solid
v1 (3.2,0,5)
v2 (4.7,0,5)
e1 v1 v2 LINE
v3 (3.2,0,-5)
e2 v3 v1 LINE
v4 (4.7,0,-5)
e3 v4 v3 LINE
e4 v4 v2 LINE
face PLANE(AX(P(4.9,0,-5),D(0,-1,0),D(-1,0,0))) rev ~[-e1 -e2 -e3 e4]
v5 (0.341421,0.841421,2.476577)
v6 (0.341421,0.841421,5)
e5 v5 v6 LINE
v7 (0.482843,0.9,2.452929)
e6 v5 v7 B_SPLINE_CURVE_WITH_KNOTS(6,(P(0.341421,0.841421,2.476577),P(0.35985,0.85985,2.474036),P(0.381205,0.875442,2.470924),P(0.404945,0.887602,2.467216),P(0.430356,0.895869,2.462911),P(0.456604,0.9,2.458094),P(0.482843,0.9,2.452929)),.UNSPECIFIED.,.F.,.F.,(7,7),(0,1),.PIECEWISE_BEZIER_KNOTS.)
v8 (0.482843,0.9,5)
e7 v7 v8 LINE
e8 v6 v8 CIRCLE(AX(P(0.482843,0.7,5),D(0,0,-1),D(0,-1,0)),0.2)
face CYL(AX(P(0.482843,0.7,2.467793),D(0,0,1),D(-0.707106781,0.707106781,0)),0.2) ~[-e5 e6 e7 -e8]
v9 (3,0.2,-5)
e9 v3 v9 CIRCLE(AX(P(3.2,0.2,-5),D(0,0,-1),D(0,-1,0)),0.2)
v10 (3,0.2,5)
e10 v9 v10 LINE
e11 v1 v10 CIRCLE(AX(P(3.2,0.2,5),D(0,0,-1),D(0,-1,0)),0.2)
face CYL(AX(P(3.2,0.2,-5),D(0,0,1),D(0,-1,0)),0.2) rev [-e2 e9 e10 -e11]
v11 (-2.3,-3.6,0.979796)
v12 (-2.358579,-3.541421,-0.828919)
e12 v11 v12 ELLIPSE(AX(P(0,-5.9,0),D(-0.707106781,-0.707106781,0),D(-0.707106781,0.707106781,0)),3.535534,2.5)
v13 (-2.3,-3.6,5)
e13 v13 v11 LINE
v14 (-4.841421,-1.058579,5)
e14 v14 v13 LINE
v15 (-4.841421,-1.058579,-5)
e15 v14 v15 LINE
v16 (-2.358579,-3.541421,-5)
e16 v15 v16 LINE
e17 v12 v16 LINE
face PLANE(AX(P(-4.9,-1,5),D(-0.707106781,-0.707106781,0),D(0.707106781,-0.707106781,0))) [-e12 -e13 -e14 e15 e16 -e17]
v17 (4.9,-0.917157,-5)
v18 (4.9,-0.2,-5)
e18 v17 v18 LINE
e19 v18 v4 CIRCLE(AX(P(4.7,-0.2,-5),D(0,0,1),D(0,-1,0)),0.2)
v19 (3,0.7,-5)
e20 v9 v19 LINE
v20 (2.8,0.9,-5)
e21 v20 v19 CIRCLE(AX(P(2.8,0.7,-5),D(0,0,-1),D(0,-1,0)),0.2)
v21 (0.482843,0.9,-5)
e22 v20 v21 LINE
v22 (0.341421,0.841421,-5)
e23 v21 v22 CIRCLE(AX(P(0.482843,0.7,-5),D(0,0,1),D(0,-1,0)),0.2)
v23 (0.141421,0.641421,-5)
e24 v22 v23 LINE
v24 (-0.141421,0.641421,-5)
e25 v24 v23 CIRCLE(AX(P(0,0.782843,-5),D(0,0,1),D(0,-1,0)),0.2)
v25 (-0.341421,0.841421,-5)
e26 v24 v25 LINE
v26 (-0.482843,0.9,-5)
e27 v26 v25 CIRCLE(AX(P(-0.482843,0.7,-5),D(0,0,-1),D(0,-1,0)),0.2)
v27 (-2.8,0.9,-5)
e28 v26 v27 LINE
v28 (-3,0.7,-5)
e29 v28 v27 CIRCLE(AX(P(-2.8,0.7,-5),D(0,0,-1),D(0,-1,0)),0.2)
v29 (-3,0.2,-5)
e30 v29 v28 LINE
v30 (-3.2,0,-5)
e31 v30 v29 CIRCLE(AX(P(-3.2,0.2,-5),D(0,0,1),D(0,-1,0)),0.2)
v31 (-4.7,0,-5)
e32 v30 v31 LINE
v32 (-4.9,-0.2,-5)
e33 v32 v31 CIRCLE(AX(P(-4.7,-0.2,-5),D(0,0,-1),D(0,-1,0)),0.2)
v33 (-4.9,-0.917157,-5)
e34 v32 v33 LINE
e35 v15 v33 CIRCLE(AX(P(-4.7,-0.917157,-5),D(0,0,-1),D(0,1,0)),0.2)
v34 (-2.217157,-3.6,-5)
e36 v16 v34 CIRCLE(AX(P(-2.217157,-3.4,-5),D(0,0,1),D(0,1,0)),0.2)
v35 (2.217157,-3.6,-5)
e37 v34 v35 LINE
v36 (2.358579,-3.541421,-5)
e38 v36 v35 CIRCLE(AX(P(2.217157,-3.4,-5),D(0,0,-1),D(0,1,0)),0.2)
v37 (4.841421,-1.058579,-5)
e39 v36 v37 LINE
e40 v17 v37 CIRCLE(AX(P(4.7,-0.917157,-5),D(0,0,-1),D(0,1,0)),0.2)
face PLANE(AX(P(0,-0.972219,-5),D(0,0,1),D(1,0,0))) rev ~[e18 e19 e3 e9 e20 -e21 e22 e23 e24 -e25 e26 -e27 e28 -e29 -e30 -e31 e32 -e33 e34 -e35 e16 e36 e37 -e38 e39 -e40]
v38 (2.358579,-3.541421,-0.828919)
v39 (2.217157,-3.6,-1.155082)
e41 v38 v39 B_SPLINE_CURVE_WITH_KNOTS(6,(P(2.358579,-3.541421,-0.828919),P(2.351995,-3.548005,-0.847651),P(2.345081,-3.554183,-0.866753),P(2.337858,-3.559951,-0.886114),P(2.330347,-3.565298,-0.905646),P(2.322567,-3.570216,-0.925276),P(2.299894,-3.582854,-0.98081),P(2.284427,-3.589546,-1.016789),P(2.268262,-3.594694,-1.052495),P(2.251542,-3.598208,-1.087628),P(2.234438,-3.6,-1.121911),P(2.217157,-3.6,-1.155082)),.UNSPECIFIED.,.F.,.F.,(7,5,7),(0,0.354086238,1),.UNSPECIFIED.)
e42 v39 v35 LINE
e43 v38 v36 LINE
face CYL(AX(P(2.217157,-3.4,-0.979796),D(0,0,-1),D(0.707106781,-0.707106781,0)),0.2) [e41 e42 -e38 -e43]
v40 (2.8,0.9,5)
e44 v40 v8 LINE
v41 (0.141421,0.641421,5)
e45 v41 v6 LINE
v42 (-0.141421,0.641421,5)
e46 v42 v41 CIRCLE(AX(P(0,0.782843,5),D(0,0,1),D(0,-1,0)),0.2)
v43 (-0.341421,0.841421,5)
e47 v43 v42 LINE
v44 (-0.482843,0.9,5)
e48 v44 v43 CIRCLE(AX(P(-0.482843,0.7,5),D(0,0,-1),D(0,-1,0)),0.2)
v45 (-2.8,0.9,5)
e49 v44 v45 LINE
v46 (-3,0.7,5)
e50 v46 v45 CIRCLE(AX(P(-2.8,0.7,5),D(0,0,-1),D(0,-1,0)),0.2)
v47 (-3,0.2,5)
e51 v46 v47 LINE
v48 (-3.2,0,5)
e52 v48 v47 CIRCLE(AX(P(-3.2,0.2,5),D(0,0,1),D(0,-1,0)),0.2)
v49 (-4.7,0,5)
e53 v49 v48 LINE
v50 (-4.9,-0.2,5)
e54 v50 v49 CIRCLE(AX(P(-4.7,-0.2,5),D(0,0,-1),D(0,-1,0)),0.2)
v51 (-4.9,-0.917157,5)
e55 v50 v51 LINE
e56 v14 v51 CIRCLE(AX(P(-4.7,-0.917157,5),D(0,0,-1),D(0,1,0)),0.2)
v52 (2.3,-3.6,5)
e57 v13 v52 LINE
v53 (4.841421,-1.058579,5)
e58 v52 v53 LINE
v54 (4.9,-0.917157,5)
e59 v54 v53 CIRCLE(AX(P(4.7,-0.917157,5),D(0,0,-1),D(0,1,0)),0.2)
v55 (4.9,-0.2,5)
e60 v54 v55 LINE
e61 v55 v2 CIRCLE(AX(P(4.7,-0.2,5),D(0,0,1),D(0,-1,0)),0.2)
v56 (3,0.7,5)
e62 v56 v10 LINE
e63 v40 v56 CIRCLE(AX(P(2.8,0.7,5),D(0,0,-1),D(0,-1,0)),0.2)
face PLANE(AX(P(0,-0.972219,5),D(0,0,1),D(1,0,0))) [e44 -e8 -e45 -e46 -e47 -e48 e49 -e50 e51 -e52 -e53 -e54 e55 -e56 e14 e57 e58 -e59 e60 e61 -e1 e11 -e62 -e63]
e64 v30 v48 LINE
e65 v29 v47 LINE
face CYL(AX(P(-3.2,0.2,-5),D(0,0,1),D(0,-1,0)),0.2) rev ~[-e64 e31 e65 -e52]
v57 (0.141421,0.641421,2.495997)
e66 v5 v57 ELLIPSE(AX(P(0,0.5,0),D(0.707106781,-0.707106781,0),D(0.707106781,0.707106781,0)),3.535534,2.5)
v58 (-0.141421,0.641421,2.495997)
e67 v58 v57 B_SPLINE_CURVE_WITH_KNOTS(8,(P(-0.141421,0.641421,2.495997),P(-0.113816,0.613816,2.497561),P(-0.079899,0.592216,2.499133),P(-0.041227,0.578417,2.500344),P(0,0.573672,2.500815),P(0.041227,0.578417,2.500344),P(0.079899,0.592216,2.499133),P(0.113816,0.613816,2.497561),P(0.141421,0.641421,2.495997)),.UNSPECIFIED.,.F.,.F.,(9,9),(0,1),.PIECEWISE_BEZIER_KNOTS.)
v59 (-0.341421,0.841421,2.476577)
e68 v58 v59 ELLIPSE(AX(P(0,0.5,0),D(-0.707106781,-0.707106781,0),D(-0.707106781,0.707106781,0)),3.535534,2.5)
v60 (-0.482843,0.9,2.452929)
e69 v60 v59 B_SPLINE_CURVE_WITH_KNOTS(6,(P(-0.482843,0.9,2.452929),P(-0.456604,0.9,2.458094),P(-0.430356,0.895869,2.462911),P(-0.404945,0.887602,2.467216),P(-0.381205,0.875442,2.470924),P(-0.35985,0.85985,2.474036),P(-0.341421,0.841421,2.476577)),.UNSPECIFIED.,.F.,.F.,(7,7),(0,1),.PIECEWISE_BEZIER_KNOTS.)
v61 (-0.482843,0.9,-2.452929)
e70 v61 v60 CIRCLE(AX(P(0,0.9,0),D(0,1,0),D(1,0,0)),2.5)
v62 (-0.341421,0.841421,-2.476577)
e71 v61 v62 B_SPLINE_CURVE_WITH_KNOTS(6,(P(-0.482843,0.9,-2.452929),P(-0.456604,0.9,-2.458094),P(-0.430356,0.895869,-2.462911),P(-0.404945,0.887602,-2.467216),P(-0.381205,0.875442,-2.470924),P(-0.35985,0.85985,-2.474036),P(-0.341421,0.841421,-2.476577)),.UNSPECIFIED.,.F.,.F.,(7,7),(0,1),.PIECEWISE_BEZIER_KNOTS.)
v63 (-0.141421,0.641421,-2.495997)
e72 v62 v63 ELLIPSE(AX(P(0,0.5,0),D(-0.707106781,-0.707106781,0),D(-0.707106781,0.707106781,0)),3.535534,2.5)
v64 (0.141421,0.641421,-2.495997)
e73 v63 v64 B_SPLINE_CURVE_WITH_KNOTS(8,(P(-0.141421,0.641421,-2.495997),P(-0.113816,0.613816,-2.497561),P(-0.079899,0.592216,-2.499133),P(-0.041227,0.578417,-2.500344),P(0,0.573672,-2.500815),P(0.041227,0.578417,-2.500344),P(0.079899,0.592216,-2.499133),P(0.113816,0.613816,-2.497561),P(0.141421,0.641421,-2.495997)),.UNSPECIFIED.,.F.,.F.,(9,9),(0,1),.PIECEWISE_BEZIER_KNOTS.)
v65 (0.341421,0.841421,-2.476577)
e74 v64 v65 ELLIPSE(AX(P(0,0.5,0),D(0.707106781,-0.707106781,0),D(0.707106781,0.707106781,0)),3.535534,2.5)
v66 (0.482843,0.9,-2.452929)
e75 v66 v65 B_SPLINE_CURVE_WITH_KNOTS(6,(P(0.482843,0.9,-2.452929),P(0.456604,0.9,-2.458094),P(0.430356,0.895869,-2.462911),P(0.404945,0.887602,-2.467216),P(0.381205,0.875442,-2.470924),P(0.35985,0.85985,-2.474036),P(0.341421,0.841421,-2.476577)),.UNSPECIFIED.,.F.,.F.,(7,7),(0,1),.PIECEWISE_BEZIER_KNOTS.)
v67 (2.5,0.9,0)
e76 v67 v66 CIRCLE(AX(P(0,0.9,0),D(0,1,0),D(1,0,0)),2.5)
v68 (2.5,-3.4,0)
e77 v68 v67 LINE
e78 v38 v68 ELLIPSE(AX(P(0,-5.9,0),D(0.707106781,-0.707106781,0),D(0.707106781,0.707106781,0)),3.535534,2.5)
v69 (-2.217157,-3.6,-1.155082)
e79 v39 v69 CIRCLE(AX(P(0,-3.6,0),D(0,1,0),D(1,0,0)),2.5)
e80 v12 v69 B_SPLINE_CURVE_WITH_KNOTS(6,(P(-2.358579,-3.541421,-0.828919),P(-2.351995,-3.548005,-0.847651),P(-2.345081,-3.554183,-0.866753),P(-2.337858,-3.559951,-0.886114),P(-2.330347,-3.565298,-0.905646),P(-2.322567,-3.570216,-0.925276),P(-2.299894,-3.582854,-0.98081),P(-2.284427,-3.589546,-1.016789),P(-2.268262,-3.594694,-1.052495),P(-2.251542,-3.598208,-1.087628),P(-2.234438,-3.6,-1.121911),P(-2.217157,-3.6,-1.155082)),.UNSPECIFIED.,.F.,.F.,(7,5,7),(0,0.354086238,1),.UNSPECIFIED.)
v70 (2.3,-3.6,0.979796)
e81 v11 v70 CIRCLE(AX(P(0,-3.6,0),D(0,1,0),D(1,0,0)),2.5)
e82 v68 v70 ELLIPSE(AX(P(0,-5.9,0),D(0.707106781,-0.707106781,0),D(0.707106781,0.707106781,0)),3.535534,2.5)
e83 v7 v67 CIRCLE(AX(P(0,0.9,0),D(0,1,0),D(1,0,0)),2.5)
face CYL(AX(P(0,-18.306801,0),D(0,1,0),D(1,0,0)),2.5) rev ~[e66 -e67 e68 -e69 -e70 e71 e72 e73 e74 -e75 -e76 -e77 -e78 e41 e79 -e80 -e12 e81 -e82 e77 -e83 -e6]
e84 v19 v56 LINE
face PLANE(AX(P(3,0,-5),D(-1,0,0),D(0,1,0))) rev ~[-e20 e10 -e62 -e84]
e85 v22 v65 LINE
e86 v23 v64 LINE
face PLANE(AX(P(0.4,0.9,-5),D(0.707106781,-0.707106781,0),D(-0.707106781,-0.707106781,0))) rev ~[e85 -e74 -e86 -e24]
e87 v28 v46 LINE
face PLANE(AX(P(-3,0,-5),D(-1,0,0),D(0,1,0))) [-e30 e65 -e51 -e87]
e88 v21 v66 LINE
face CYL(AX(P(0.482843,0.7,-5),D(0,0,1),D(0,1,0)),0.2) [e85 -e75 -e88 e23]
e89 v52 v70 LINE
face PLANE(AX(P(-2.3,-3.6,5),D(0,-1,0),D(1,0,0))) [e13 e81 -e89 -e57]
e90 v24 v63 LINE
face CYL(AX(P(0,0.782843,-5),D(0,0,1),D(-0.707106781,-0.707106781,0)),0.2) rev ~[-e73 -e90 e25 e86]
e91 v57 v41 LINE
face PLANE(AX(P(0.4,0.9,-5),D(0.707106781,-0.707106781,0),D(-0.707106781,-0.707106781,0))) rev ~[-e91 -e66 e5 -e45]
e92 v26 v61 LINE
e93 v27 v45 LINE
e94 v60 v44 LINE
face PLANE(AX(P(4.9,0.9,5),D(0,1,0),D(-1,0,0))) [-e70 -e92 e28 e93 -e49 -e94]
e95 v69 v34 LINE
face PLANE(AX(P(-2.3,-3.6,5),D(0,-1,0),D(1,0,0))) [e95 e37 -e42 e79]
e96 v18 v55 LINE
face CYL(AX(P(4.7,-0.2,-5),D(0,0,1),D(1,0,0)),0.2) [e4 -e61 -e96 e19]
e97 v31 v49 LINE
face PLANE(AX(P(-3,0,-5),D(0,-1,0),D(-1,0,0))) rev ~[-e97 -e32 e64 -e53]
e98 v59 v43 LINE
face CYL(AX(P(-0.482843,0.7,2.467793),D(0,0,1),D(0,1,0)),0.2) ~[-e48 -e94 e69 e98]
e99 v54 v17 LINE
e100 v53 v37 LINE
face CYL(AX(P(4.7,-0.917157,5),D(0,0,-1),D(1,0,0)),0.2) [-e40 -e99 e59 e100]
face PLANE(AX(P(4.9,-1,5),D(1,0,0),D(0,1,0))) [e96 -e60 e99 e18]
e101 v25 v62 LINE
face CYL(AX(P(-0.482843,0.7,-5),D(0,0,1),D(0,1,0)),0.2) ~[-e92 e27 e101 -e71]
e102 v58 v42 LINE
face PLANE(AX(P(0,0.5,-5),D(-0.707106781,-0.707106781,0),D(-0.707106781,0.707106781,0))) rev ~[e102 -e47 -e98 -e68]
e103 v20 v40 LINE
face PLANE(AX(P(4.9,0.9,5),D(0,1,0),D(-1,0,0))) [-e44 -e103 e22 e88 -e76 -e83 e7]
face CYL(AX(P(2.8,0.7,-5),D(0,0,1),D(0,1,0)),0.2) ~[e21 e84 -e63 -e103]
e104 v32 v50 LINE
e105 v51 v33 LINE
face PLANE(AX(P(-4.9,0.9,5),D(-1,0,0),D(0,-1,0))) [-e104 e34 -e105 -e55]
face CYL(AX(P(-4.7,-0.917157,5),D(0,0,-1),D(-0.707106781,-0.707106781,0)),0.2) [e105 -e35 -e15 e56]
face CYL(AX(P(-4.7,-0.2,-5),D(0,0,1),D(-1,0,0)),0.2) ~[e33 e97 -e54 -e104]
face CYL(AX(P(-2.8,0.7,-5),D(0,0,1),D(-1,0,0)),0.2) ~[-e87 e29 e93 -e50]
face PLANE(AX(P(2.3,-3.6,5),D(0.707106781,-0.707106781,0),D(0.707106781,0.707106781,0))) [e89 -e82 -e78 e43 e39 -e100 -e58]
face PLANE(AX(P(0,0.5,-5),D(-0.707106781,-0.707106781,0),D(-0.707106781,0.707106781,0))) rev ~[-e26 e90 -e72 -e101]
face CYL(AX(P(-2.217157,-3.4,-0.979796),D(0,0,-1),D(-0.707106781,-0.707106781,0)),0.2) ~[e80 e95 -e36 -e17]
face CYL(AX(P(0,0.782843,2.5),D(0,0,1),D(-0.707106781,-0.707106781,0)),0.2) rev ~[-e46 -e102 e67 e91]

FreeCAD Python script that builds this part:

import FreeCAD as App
import Part
import Sketcher

V = App.Vector
Q = App.Units.Quantity


def edges_at(feature, points):
    """Names of the edges that pass closest to the given points."""
    edges = feature.Shape.Edges
    near = lambda p: min(range(len(edges)), key=lambda i: edges[i].distToShape(Part.Vertex(*p))[0])
    return sorted({f"Edge{near(p) + 1}" for p in points})

doc = App.newDocument("Part")
body = doc.addObject("PartDesign::Body", "Body")

# Sketch on XY plane
sketch1 = body.newObject("Sketcher::SketchObject", "Sketch")
sketch1.AttachmentSupport = (doc.getObject("XY_Plane"), [""])
sketch1.MapMode = "FlatFace"
sketch1.AttachmentOffset = App.Placement(V(0, 0, 5), App.Rotation())
sketch1.addGeometry([
    Part.LineSegment(V(4.9, -1, 0), V(4.9, 0.9, 0)),  # 0
    Part.LineSegment(V(4.9, 0.9, 0), V(-4.9, 0.9, 0)),  # 1
    Part.LineSegment(V(-4.9, 0.9, 0), V(-4.9, -1, 0)),  # 2
    Part.LineSegment(V(-4.9, -1, 0), V(-2.3, -3.6, 0)),  # 3
    Part.LineSegment(V(-2.3, -3.6, 0), V(2.3, -3.6, 0)),  # 4
    Part.LineSegment(V(2.3, -3.6, 0), V(4.9, -1, 0)),  # 5
], False)
sketch1.addConstraint([
    Sketcher.Constraint("Coincident", 0, 2, 1, 1),
    Sketcher.Constraint("Coincident", 1, 2, 2, 1),
    Sketcher.Constraint("Coincident", 2, 2, 3, 1),
    Sketcher.Constraint("Coincident", 3, 2, 4, 1),
    Sketcher.Constraint("Coincident", 4, 2, 5, 1),
    Sketcher.Constraint("Coincident", 5, 2, 0, 1),
    Sketcher.Constraint("Vertical", 0),
    Sketcher.Constraint("Horizontal", 1),
    Sketcher.Constraint("Vertical", 2),
    Sketcher.Constraint("Horizontal", 4),
    Sketcher.Constraint("Symmetric", 2, 2, 5, 2, -2),
    Sketcher.Constraint("Perpendicular", 3, 5),
    Sketcher.Constraint("Equal", 3, 5),
    Sketcher.Constraint("DistanceX", 1, 2, 1, 1, Q("9.8 mm")),
    Sketcher.Constraint("DistanceX", 4, 1, 4, 2, Q("4.6 mm")),
    Sketcher.Constraint("DistanceY", 0, 1, 0, 2, Q("1.9 mm")),
    Sketcher.Constraint("DistanceY", 2, 2, -1, 1, Q("1 mm")),
])
pad1 = body.newObject("PartDesign::Pad", "Pad")
pad1.Profile = sketch1
pad1.Length = 10
pad1.Reversed = True

# Sketch on XY plane
sketch2 = body.newObject("Sketcher::SketchObject", "Sketch001")
sketch2.AttachmentSupport = (doc.getObject("XY_Plane"), [""])
sketch2.MapMode = "FlatFace"
sketch2.AttachmentOffset = App.Placement(V(0, 0, -5), App.Rotation())
sketch2.addGeometry([
    Part.LineSegment(V(-3, 0.9, 0), V(-3, 0, 0)),
    Part.LineSegment(V(-3, 0, 0), V(-4.9, 0, 0)),
    Part.LineSegment(V(-4.9, 0, 0), V(-4.9, 0.9, 0)),
    Part.LineSegment(V(-4.9, 0.9, 0), V(-3, 0.9, 0)),
], False)
sketch2.addConstraint([
    Sketcher.Constraint("Coincident", 0, 2, 1, 1),
    Sketcher.Constraint("Coincident", 1, 2, 2, 1),
    Sketcher.Constraint("Coincident", 2, 2, 3, 1),
    Sketcher.Constraint("Coincident", 3, 2, 0, 1),
    Sketcher.Constraint("Vertical", 0),
    Sketcher.Constraint("Horizontal", 1),
    Sketcher.Constraint("Vertical", 2),
    Sketcher.Constraint("Horizontal", 3),
    Sketcher.Constraint("PointOnObject", 0, 2, -1),
    Sketcher.Constraint("DistanceX", 1, 2, 1, 1, Q("1.9 mm")),
    Sketcher.Constraint("DistanceY", 0, 2, 0, 1, Q("0.9 mm")),
    Sketcher.Constraint("DistanceX", 0, 2, -1, 1, Q("3 mm")),
])
pocket1 = body.newObject("PartDesign::Pocket", "Pocket")
pocket1.Profile = sketch2
pocket1.Type = "ThroughAll"
pocket1.Reversed = True

# Sketch on XY plane
sketch3 = body.newObject("Sketcher::SketchObject", "Sketch002")
sketch3.AttachmentSupport = (doc.getObject("XY_Plane"), [""])
sketch3.MapMode = "FlatFace"
sketch3.AttachmentOffset = App.Placement(V(0, 0, -5), App.Rotation())
sketch3.addGeometry([
    Part.LineSegment(V(4.9, 0.9, 0), V(4.9, 0, 0)),
    Part.LineSegment(V(4.9, 0, 0), V(3, 0, 0)),
    Part.LineSegment(V(3, 0, 0), V(3, 0.9, 0)),
    Part.LineSegment(V(3, 0.9, 0), V(4.9, 0.9, 0)),
], False)
sketch3.addConstraint([
    Sketcher.Constraint("Coincident", 0, 2, 1, 1),
    Sketcher.Constraint("Coincident", 1, 2, 2, 1),
    Sketcher.Constraint("Coincident", 2, 2, 3, 1),
    Sketcher.Constraint("Coincident", 3, 2, 0, 1),
    Sketcher.Constraint("Vertical", 0),
    Sketcher.Constraint("Horizontal", 1),
    Sketcher.Constraint("Vertical", 2),
    Sketcher.Constraint("Horizontal", 3),
    Sketcher.Constraint("PointOnObject", 0, 2, -1),
    Sketcher.Constraint("DistanceX", 1, 2, 1, 1, Q("1.9 mm")),
    Sketcher.Constraint("DistanceY", 0, 2, 0, 1, Q("0.9 mm")),
    Sketcher.Constraint("DistanceX", -1, 1, 1, 2, Q("3 mm")),
])
pocket2 = body.newObject("PartDesign::Pocket", "Pocket001")
pocket2.Profile = sketch3
pocket2.Type = "ThroughAll"
pocket2.Reversed = True

# Sketch on XY plane
sketch4 = body.newObject("Sketcher::SketchObject", "Sketch003")
sketch4.AttachmentSupport = (doc.getObject("XY_Plane"), [""])
sketch4.MapMode = "FlatFace"
sketch4.AttachmentOffset = App.Placement(V(0, 0, -5), App.Rotation())
sketch4.addGeometry([
    Part.LineSegment(V(-0.4, 0.9, 0), V(0.4, 0.9, 0)),
    Part.LineSegment(V(0.4, 0.9, 0), V(0, 0.5, 0)),
    Part.LineSegment(V(0, 0.5, 0), V(-0.4, 0.9, 0)),
], False)
sketch4.addConstraint([
    Sketcher.Constraint("Coincident", 0, 2, 1, 1),
    Sketcher.Constraint("Coincident", 1, 2, 2, 1),
    Sketcher.Constraint("Coincident", 2, 2, 0, 1),
    Sketcher.Constraint("Horizontal", 0),
    Sketcher.Constraint("PointOnObject", 1, 2, -2),
    Sketcher.Constraint("Perpendicular", 1, 2),
    Sketcher.Constraint("Equal", 1, 2),
    Sketcher.Constraint("DistanceX", 0, 1, 0, 2, Q("0.8 mm")),
    Sketcher.Constraint("DistanceY", -1, 1, 0, 2, Q("0.9 mm")),
])
pocket3 = body.newObject("PartDesign::Pocket", "Pocket002")
pocket3.Profile = sketch4
pocket3.Type = "ThroughAll"
pocket3.Reversed = True

# Sketch on XZ plane
sketch5 = body.newObject("Sketcher::SketchObject", "Sketch004")
sketch5.AttachmentSupport = (doc.getObject("XZ_Plane"), [""])
sketch5.MapMode = "FlatFace"
sketch5.AttachmentOffset = App.Placement(V(0, 0, 3.6), App.Rotation())
sketch5.addGeometry(Part.Circle(V(0, 0, 0), V(0, 0, 1), 2.5), False)
sketch5.addConstraint([
    Sketcher.Constraint("Coincident", 0, 3, -1, 1),
    Sketcher.Constraint("Diameter", 0, Q("5 mm")),
])
doc.recompute()
hole = body.newObject("PartDesign::Hole", "Hole")
hole.Profile = sketch5
hole.ThreadType = "None"
hole.Diameter = 5
hole.DepthType = "ThroughAll"
doc.recompute()

fillet = body.newObject("PartDesign::Fillet", "Fillet")
fillet.Base = (hole, edges_at(hole, [
    (4.9, 0, 0),
    (3, 0, 0),
    (-4.9, -1, 0),
    (3, 0.9, 0),
    (-3, 0, 0),
    (0.4, 0.9, -3.734),
    (0, 0.5, 3.75),
    (-0.4, 0.9, -3.734),
    (4.9, -1, 0),
    (-3, 0.9, 0),
    (0, 0.5, -3.75),
    (-0.4, 0.9, 3.734),
    (-4.9, 0, 0),
    (-2.3, -3.6, -2.99),
    (0.4, 0.9, 3.734),
    (2.3, -3.6, -2.99),
]))
fillet.Radius = 0.2

doc.recompute()
